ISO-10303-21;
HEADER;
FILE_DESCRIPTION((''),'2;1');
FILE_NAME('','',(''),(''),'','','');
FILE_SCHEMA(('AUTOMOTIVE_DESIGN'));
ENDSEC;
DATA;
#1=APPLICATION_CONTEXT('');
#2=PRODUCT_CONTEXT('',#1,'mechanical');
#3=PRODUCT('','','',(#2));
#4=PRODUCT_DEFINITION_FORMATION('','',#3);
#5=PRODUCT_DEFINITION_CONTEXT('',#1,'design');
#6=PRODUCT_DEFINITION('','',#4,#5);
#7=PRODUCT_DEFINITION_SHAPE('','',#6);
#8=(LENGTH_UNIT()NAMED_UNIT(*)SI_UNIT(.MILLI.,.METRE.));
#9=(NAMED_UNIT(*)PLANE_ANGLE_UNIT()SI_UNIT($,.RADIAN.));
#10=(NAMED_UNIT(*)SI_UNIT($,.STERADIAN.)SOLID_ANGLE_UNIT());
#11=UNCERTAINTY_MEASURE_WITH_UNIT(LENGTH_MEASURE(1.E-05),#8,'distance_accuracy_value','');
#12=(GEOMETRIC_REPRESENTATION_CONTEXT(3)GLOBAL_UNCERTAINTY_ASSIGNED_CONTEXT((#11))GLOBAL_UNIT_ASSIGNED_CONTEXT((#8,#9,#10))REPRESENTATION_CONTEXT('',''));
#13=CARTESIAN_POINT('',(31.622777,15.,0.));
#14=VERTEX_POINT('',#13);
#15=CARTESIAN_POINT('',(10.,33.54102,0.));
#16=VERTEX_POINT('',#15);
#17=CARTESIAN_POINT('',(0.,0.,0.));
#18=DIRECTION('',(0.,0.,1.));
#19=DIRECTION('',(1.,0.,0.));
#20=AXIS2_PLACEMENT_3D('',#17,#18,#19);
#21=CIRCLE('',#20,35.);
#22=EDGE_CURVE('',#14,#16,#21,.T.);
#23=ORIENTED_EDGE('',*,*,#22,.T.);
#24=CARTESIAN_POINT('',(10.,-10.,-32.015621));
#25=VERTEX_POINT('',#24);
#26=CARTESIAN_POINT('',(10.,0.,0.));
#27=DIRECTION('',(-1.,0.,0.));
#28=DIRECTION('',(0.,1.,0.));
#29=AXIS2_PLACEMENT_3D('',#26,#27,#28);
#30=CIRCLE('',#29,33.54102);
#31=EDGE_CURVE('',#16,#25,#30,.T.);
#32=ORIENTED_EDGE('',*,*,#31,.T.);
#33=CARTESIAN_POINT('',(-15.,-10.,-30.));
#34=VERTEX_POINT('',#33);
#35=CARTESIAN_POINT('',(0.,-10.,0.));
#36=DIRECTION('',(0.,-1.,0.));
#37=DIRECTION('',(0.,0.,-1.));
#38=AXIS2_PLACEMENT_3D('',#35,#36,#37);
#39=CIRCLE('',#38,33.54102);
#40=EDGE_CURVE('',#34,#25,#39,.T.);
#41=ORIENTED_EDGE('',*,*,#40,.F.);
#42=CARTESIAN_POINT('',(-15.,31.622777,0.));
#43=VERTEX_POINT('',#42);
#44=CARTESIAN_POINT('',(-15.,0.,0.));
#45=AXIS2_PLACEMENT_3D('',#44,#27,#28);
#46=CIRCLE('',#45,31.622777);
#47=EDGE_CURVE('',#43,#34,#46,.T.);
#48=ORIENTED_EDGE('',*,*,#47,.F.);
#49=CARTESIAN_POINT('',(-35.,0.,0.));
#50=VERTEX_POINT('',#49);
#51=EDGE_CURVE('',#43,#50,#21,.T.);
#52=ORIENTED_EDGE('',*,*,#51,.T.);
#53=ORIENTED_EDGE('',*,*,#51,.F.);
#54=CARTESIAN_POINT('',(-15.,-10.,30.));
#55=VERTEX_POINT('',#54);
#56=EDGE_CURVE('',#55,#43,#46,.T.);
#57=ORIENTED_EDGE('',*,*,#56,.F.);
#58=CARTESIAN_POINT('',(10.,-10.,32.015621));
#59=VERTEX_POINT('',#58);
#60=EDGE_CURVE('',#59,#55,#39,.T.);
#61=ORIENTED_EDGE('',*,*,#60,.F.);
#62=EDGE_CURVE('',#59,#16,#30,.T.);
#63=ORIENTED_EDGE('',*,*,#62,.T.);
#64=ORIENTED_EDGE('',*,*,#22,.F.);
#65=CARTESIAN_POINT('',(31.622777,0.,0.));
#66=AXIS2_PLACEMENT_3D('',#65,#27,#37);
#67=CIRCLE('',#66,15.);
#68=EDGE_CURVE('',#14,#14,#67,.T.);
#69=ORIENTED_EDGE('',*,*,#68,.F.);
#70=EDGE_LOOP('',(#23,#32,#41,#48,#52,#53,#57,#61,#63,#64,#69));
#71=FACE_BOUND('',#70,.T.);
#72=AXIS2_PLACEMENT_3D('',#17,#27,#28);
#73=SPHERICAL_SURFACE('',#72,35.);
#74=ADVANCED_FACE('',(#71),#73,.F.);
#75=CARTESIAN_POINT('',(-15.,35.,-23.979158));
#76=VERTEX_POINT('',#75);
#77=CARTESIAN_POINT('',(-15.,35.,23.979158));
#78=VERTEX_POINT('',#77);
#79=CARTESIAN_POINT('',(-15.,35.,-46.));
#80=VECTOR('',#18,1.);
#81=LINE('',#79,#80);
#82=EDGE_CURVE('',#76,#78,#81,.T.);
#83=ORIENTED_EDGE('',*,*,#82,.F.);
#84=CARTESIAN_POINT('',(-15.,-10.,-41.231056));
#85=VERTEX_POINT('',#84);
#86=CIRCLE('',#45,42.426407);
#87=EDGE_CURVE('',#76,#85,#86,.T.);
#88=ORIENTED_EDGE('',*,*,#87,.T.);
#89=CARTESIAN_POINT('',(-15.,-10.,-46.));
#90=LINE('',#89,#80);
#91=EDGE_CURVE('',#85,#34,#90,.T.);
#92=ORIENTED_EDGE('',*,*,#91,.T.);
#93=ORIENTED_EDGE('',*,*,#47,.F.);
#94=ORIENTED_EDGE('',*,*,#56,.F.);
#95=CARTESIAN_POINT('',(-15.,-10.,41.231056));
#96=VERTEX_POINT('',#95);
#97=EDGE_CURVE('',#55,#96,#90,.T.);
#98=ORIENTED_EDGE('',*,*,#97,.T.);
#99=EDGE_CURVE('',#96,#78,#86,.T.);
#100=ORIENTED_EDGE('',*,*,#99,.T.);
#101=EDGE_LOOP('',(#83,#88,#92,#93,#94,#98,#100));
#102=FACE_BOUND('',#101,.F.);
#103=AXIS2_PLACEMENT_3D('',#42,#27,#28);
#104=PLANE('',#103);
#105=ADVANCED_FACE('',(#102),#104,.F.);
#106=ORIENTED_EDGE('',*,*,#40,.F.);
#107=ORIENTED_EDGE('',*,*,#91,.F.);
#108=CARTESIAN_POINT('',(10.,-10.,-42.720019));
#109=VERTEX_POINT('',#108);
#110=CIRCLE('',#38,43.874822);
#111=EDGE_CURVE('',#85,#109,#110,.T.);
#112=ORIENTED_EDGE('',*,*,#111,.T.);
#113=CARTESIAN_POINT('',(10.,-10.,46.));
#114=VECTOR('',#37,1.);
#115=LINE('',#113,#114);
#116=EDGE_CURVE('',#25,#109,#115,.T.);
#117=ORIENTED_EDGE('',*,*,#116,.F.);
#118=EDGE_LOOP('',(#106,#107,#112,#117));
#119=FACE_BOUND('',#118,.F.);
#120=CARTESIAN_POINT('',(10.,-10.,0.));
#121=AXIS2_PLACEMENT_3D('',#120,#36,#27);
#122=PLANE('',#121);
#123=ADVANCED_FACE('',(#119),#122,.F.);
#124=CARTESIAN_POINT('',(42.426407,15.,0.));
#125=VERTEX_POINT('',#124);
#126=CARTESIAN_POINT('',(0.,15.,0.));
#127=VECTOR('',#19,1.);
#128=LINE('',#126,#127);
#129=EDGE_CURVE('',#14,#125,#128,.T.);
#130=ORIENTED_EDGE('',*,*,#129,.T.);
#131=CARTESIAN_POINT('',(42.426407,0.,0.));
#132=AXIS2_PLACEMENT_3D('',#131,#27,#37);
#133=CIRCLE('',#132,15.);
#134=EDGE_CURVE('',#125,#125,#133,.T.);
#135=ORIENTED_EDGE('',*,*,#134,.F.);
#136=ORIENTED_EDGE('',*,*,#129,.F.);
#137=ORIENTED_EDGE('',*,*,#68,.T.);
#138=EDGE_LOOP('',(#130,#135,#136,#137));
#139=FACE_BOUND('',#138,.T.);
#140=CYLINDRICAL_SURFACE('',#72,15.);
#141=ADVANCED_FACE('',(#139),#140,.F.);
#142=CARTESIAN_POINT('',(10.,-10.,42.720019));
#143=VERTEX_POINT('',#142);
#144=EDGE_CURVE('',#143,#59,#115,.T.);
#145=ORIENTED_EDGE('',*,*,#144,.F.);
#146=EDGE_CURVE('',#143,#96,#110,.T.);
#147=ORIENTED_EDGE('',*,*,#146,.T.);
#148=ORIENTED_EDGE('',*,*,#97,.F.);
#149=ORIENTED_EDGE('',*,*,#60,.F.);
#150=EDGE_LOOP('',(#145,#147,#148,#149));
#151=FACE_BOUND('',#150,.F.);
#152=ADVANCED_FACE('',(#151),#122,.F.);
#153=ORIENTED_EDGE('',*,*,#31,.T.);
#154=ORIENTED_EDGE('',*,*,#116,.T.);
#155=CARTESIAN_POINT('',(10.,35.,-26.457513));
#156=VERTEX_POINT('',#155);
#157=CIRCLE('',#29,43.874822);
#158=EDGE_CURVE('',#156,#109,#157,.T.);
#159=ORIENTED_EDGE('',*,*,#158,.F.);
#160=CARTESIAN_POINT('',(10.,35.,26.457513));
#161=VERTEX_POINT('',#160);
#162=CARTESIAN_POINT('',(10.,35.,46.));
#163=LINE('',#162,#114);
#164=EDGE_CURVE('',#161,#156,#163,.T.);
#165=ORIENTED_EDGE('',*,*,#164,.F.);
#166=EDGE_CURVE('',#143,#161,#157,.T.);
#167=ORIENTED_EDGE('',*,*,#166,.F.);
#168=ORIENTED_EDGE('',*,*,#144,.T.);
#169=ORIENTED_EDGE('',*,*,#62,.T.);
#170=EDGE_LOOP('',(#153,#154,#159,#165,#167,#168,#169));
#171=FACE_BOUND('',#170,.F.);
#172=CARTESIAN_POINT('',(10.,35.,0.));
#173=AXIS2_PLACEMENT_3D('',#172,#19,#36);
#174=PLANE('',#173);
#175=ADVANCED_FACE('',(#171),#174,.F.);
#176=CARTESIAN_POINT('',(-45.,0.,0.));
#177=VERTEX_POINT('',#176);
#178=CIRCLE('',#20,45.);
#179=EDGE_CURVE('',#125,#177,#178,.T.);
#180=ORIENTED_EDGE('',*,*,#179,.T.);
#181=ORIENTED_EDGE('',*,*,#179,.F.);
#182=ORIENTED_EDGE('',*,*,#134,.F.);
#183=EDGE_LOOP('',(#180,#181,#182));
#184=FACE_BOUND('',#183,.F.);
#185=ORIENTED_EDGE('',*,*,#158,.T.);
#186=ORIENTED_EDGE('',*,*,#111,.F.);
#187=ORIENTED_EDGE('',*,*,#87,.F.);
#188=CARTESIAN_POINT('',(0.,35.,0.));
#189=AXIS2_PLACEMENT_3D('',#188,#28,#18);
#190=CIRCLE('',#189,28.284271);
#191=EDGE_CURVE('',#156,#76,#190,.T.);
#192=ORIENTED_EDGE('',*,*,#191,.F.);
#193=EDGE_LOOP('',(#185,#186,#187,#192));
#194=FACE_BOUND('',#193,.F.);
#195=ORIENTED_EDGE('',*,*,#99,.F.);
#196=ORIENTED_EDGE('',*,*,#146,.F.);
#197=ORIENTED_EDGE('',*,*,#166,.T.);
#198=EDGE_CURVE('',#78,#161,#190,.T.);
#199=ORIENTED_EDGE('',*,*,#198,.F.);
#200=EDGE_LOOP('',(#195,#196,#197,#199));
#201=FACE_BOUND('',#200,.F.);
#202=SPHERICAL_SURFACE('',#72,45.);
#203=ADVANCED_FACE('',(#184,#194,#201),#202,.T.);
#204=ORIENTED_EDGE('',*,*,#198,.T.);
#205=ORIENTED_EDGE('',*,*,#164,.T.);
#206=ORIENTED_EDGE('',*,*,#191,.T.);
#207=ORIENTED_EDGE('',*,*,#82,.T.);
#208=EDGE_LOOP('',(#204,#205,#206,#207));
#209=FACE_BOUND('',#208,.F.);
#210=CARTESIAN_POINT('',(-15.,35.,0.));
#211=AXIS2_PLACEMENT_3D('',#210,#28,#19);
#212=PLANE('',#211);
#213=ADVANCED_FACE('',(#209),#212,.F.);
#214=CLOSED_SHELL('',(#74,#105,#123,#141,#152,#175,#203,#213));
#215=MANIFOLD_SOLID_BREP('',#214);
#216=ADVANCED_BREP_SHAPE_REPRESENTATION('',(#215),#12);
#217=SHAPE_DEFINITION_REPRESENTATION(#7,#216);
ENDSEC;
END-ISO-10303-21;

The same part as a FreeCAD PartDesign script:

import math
import FreeCAD as App
import Part
import Sketcher

doc = App.newDocument("Part")
body = doc.addObject("PartDesign::Body", "Body")

# Sketch on XY plane
sketch1 = body.newObject("Sketcher::SketchObject", "Sketch")
sketch1.AttachmentSupport = (doc.getObject("XY_Plane"), [""])
sketch1.MapMode = "FlatFace"
sketch1.addGeometry(Part.ArcOfCircle(Part.Circle(App.Vector(0, 0, 0), App.Vector(0, 0, 1), 35), math.radians(0), math.radians(180)), False)
sketch1.addGeometry(Part.LineSegment(App.Vector(35, 0, 0), App.Vector(45, 0, 0)), False)
sketch1.addGeometry(Part.ArcOfCircle(Part.Circle(App.Vector(0, 0, 0), App.Vector(0, 0, 1), 45), math.radians(0), math.radians(180)), False)
sketch1.addGeometry(Part.LineSegment(App.Vector(-45, 0, 0), App.Vector(-35, 0, 0)), False)
sketch1.addConstraint(Sketcher.Constraint("Coincident", 0, 1, 1, 1))
sketch1.addConstraint(Sketcher.Constraint("Coincident", 1, 2, 2, 1))
sketch1.addConstraint(Sketcher.Constraint("Coincident", 2, 2, 3, 1))
sketch1.addConstraint(Sketcher.Constraint("Coincident", 3, 2, 0, 2))
sketch1.addConstraint(Sketcher.Constraint("Horizontal", 1))
sketch1.addConstraint(Sketcher.Constraint("Horizontal", 3))
sketch1.addConstraint(Sketcher.Constraint("Coincident", 0, 3, -1, 1))
sketch1.addConstraint(Sketcher.Constraint("Coincident", 2, 3, -1, 1))
sketch1.addConstraint(Sketcher.Constraint("PointOnObject", 0, 1, -1))
sketch1.addConstraint(Sketcher.Constraint("PointOnObject", 2, 2, -1))
sketch1.addConstraint(Sketcher.Constraint("Radius", 0, 35.0))
sketch1.addConstraint(Sketcher.Constraint("Radius", 2, 45.0))
revolution = body.newObject("PartDesign::Revolution", "Revolution")
revolution.Profile = sketch1
revolution.ReferenceAxis = (sketch1, ["H_Axis"])
revolution.Angle = 360

# Sketch on XY plane
sketch2 = body.newObject("Sketcher::SketchObject", "Sketch001")
sketch2.AttachmentSupport = (doc.getObject("XY_Plane"), [""])
sketch2.MapMode = "FlatFace"
sketch2.addGeometry(Part.LineSegment(App.Vector(-15, 35, 0), App.Vector(-15, -10, 0)), False)
sketch2.addGeometry(Part.LineSegment(App.Vector(-15, -10, 0), App.Vector(10, -10, 0)), False)
sketch2.addGeometry(Part.LineSegment(App.Vector(10, -10, 0), App.Vector(10, 35, 0)), False)
sketch2.addGeometry(Part.LineSegment(App.Vector(10, 35, 0), App.Vector(-15, 35, 0)), False)
sketch2.addConstraint(Sketcher.Constraint("Coincident", 0, 2, 1, 1))
sketch2.addConstraint(Sketcher.Constraint("Coincident", 1, 2, 2, 1))
sketch2.addConstraint(Sketcher.Constraint("Coincident", 2, 2, 3, 1))
sketch2.addConstraint(Sketcher.Constraint("Coincident", 3, 2, 0, 1))
sketch2.addConstraint(Sketcher.Constraint("Vertical", 0))
sketch2.addConstraint(Sketcher.Constraint("Horizontal", 1))
sketch2.addConstraint(Sketcher.Constraint("Vertical", 2))
sketch2.addConstraint(Sketcher.Constraint("Horizontal", 3))
sketch2.addConstraint(Sketcher.Constraint("DistanceX", 1, 1, 1, 2, 25.0))
sketch2.addConstraint(Sketcher.Constraint("DistanceY", 0, 2, 0, 1, 45.0))
sketch2.addConstraint(Sketcher.Constraint("DistanceY", 0, 2, -1, 1, 10.0))
sketch2.addConstraint(Sketcher.Constraint("DistanceX", -1, 1, 1, 2, 10.0))
pocket1 = body.newObject("PartDesign::Pocket", "Pocket")
pocket1.Profile = sketch2
pocket1.Type = "ThroughAll"
pocket1.Midplane = True

# Sketch on YZ plane
sketch3 = body.newObject("Sketcher::SketchObject", "Sketch002")
sketch3.AttachmentSupport = (doc.getObject("YZ_Plane"), [""])
sketch3.MapMode = "FlatFace"
sketch3.addGeometry(Part.Circle(App.Vector(0, 0, 0), App.Vector(0, 0, 1), 15), False)
sketch3.addConstraint(Sketcher.Constraint("Coincident", 0, 3, -1, 1))
sketch3.addConstraint(Sketcher.Constraint("Diameter", 0, 30.0))
pocket2 = body.newObject("PartDesign::Pocket", "Pocket001")
pocket2.Profile = sketch3
pocket2.Type = "ThroughAll"
pocket2.Reversed = True

doc.recompute()
